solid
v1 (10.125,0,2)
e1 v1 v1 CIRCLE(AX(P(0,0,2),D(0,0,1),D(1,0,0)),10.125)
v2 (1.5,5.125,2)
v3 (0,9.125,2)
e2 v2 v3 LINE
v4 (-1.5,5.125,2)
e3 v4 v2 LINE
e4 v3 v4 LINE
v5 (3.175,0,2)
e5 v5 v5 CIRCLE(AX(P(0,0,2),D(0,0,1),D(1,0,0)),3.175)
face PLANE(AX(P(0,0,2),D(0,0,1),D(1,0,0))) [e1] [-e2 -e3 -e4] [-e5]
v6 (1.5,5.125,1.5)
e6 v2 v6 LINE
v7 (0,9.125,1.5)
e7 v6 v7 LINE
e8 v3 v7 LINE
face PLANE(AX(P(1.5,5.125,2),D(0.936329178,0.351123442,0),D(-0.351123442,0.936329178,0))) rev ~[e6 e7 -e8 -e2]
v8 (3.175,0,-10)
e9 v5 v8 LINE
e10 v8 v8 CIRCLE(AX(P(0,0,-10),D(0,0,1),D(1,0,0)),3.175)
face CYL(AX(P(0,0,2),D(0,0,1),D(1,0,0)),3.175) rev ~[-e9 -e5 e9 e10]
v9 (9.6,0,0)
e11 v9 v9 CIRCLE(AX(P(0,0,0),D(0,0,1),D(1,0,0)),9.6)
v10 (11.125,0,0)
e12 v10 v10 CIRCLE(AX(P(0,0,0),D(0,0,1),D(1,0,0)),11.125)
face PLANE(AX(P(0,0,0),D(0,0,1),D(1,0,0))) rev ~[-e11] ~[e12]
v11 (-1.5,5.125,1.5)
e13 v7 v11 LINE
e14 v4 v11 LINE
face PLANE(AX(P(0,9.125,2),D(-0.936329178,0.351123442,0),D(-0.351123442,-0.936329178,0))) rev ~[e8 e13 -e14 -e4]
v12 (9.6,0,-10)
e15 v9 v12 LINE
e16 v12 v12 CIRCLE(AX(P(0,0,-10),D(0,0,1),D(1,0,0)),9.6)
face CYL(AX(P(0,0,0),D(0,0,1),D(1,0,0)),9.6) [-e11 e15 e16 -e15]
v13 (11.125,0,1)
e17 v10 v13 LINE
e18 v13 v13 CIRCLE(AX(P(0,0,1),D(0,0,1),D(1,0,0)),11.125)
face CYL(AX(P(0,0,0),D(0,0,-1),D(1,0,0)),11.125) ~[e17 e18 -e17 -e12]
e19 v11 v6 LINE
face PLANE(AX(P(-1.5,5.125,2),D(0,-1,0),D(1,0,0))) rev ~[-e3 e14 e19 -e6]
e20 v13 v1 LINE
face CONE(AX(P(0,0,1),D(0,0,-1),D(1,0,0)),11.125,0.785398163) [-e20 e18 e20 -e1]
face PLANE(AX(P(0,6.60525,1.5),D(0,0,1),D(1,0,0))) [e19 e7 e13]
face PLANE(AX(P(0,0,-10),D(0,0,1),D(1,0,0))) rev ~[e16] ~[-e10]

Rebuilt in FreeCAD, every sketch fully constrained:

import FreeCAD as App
import Part
import Sketcher
from FreeCAD import Vector
Q = App.Units.Quantity


def edges_at(feature, points):
    """Names of the edges that pass closest to the given points."""
    edges = feature.Shape.Edges
    near = lambda p: min(range(len(edges)), key=lambda i: edges[i].distToShape(Part.Vertex(*p))[0])
    return sorted({f"Edge{near(p) + 1}" for p in points})


def add_polygon(sketch, points):
    """Adds a closed chain of lines whose ends are joined by coincident constraints."""
    first, n = sketch.GeometryCount, len(points)
    for a, b in zip(points, points[1:] + points[:1]):
        sketch.addGeometry(Part.LineSegment(App.Vector(*a, 0), App.Vector(*b, 0)), False)
    for i in range(n):
        sketch.addConstraint(Sketcher.Constraint("Coincident", first + i, 2, first + (i + 1) % n, 1))

doc = App.newDocument("Part")
body = doc.addObject("PartDesign::Body", "Body")

# Sketch on XY plane
sketch1 = body.newObject("Sketcher::SketchObject", "Sketch")
sketch1.AttachmentSupport = (doc.getObject("XY_Plane"), [""])
sketch1.MapMode = "FlatFace"
sketch1.addGeometry(Part.Circle(Vector(0, 0, 0), Vector(0, 0, 1), 10), False)
sketch1.addConstraint([
    Sketcher.Constraint("Coincident", 0, 3, -1, 1),
    Sketcher.Constraint("Diameter", 0, Q("19.2 mm")),
])
pad1 = body.newObject("PartDesign::Pad", "Pad")
pad1.Profile = sketch1
pad1.Length = 10
pad1.Reversed = True

# Sketch on XY plane
sketch2 = body.newObject("Sketcher::SketchObject", "Sketch001")
sketch2.AttachmentSupport = (doc.getObject("XY_Plane"), [""])
sketch2.MapMode = "FlatFace"
sketch2.addGeometry(Part.Circle(Vector(0, 0, 0), Vector(0, 0, 1), 11), False)
sketch2.addConstraint([
    Sketcher.Constraint("Coincident", 0, 3, -1, 1),
    Sketcher.Constraint("Diameter", 0, Q("22.25 mm")),
])
pad2 = body.newObject("PartDesign::Pad", "Pad001")
pad2.Profile = sketch2
pad2.Length = 2
doc.recompute()

chamfer = body.newObject("PartDesign::Chamfer", "Chamfer")
chamfer.Base = (pad2, edges_at(pad2, [(-11.125, 0, 2)]))
chamfer.Size = 1

# Sketch on XY plane
sketch3 = body.newObject("Sketcher::SketchObject", "Sketch002")
sketch3.AttachmentSupport = (doc.getObject("XY_Plane"), [""])
sketch3.MapMode = "FlatFace"
sketch3.AttachmentOffset = App.Placement(Vector(0, 0, 2), App.Rotation())
sketch3.addGeometry(Part.Circle(Vector(0, 0, 0), Vector(0, 0, 1), 3.2), False)
sketch3.addConstraint([
    Sketcher.Constraint("Coincident", 0, 3, -1, 1),
    Sketcher.Constraint("Diameter", 0, Q("6.35 mm")),
])
pocket1 = body.newObject("PartDesign::Pocket", "Pocket")
pocket1.Profile = sketch3
pocket1.Type = "ThroughAll"

# Sketch on XY plane
sketch4 = body.newObject("Sketcher::SketchObject", "Sketch003")
sketch4.AttachmentSupport = (doc.getObject("XY_Plane"), [""])
sketch4.MapMode = "FlatFace"
sketch4.AttachmentOffset = App.Placement(Vector(0, 0, 2), App.Rotation())
add_polygon(sketch4, [(1.5, 5.1), (0, 9.1), (-1.5, 5.1)])  # lines 0-2
sketch4.addConstraint([
    Sketcher.Constraint("Horizontal", 2),
    Sketcher.Constraint("PointOnObject", 0, 2, -2),
    Sketcher.Constraint("Equal", 0, 1),
    Sketcher.Constraint("DistanceX", 2, 1, 2, 2, Q("3 mm")),
    Sketcher.Constraint("DistanceY", 1, 2, 0, 2, Q("4 mm")),
    Sketcher.Constraint("DistanceY", -1, 1, 0, 2, Q("9.125 mm")),
])
pocket2 = body.newObject("PartDesign::Pocket", "Pocket001")
pocket2.Profile = sketch4
pocket2.Length = 0.5

doc.recompute()
